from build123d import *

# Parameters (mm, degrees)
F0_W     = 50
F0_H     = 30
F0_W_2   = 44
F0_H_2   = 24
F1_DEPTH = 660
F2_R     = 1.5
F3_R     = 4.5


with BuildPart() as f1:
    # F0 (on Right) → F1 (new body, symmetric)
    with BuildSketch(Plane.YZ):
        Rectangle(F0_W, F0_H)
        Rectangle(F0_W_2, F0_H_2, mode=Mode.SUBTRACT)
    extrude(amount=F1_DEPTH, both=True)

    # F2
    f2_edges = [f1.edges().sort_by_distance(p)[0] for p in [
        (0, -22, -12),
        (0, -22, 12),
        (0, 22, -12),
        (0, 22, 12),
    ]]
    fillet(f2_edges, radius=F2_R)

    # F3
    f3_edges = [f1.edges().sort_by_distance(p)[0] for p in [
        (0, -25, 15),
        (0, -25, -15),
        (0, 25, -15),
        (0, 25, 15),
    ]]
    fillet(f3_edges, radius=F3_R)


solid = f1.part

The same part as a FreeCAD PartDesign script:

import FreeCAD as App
import Part
import Sketcher
Q = App.Units.Quantity


def edges_at(feature, points):
    """Names of the edges that pass closest to the given points."""
    edges = feature.Shape.Edges
    near = lambda p: min(range(len(edges)), key=lambda i: edges[i].distToShape(Part.Vertex(*p))[0])
    return sorted({f"Edge{near(p) + 1}" for p in points})

doc = App.newDocument("Part")
body = doc.addObject("PartDesign::Body", "Body")

# Sketch on YZ plane
sketch1 = doc.addObject("Sketcher::SketchObject", "Sketch")
body.addObject(sketch1)
sketch1.AttachmentSupport = (doc.YZ_Plane, [""])
sketch1.MapMode = "FlatFace"
sketch1.addGeometry(Part.LineSegment(App.Vector(-25, 15, 0), App.Vector(-25, -15, 0)), False)
sketch1.addGeometry(Part.LineSegment(App.Vector(-25, -15, 0), App.Vector(25, -15, 0)), False)
sketch1.addGeometry(Part.LineSegment(App.Vector(25, -15, 0), App.Vector(25, 15, 0)), False)
sketch1.addGeometry(Part.LineSegment(App.Vector(25, 15, 0), App.Vector(-25, 15, 0)), False)
sketch1.addGeometry(Part.LineSegment(App.Vector(22, -12, 0), App.Vector(-22, -12, 0)), False)
sketch1.addGeometry(Part.LineSegment(App.Vector(-22, -12, 0), App.Vector(-22, 12, 0)), False)
sketch1.addGeometry(Part.LineSegment(App.Vector(-22, 12, 0), App.Vector(22, 12, 0)), False)
sketch1.addGeometry(Part.LineSegment(App.Vector(22, 12, 0), App.Vector(22, -12, 0)), False)
sketch1.addConstraint(Sketcher.Constraint("Coincident", 0, 2, 1, 1))
sketch1.addConstraint(Sketcher.Constraint("Coincident", 1, 2, 2, 1))
sketch1.addConstraint(Sketcher.Constraint("Coincident", 2, 2, 3, 1))
sketch1.addConstraint(Sketcher.Constraint("Coincident", 3, 2, 0, 1))
sketch1.addConstraint(Sketcher.Constraint("Coincident", 4, 2, 5, 1))
sketch1.addConstraint(Sketcher.Constraint("Coincident", 5, 2, 6, 1))
sketch1.addConstraint(Sketcher.Constraint("Coincident", 6, 2, 7, 1))
sketch1.addConstraint(Sketcher.Constraint("Coincident", 7, 2, 4, 1))
sketch1.addConstraint(Sketcher.Constraint("Vertical", 0))
sketch1.addConstraint(Sketcher.Constraint("Horizontal", 1))
sketch1.addConstraint(Sketcher.Constraint("Vertical", 2))
sketch1.addConstraint(Sketcher.Constraint("Horizontal", 3))
sketch1.addConstraint(Sketcher.Constraint("Horizontal", 4))
sketch1.addConstraint(Sketcher.Constraint("Vertical", 5))
sketch1.addConstraint(Sketcher.Constraint("Horizontal", 6))
sketch1.addConstraint(Sketcher.Constraint("Vertical", 7))
sketch1.addConstraint(Sketcher.Constraint("Symmetric", 0, 2, 2, 2, -1, 1))
sketch1.addConstraint(Sketcher.Constraint("Symmetric", 4, 2, 6, 2, -1, 1))
sketch1.addConstraint(Sketcher.Constraint("DistanceX", 1, 1, 1, 2, Q("50 mm")))
sketch1.addConstraint(Sketcher.Constraint("DistanceX", 4, 2, 4, 1, Q("44 mm")))
sketch1.addConstraint(Sketcher.Constraint("DistanceY", 0, 2, 0, 1, Q("30 mm")))
sketch1.addConstraint(Sketcher.Constraint("DistanceY", 5, 1, 5, 2, Q("24 mm")))
pad1 = doc.addObject("PartDesign::Pad", "Pad")
body.addObject(pad1)
pad1.Profile = sketch1
pad1.Length = 1320
pad1.Midplane = True
doc.recompute()

fillet = doc.addObject("PartDesign::Fillet", "Fillet")
body.addObject(fillet)
fillet.Base = (pad1, edges_at(pad1, [
    (0, -22, -12),
    (0, -22, 12),
    (0, 22, -12),
    (0, 22, 12),
]))
fillet.Radius = 1.5
doc.recompute()

fillet2 = doc.addObject("PartDesign::Fillet", "Fillet001")
body.addObject(fillet2)
fillet2.Base = (fillet, edges_at(fillet, [
    (0, -25, 15),
    (0, -25, -15),
    (0, 25, -15),
    (0, 25, 15),
]))
fillet2.Radius = 4.5

doc.recompute()
